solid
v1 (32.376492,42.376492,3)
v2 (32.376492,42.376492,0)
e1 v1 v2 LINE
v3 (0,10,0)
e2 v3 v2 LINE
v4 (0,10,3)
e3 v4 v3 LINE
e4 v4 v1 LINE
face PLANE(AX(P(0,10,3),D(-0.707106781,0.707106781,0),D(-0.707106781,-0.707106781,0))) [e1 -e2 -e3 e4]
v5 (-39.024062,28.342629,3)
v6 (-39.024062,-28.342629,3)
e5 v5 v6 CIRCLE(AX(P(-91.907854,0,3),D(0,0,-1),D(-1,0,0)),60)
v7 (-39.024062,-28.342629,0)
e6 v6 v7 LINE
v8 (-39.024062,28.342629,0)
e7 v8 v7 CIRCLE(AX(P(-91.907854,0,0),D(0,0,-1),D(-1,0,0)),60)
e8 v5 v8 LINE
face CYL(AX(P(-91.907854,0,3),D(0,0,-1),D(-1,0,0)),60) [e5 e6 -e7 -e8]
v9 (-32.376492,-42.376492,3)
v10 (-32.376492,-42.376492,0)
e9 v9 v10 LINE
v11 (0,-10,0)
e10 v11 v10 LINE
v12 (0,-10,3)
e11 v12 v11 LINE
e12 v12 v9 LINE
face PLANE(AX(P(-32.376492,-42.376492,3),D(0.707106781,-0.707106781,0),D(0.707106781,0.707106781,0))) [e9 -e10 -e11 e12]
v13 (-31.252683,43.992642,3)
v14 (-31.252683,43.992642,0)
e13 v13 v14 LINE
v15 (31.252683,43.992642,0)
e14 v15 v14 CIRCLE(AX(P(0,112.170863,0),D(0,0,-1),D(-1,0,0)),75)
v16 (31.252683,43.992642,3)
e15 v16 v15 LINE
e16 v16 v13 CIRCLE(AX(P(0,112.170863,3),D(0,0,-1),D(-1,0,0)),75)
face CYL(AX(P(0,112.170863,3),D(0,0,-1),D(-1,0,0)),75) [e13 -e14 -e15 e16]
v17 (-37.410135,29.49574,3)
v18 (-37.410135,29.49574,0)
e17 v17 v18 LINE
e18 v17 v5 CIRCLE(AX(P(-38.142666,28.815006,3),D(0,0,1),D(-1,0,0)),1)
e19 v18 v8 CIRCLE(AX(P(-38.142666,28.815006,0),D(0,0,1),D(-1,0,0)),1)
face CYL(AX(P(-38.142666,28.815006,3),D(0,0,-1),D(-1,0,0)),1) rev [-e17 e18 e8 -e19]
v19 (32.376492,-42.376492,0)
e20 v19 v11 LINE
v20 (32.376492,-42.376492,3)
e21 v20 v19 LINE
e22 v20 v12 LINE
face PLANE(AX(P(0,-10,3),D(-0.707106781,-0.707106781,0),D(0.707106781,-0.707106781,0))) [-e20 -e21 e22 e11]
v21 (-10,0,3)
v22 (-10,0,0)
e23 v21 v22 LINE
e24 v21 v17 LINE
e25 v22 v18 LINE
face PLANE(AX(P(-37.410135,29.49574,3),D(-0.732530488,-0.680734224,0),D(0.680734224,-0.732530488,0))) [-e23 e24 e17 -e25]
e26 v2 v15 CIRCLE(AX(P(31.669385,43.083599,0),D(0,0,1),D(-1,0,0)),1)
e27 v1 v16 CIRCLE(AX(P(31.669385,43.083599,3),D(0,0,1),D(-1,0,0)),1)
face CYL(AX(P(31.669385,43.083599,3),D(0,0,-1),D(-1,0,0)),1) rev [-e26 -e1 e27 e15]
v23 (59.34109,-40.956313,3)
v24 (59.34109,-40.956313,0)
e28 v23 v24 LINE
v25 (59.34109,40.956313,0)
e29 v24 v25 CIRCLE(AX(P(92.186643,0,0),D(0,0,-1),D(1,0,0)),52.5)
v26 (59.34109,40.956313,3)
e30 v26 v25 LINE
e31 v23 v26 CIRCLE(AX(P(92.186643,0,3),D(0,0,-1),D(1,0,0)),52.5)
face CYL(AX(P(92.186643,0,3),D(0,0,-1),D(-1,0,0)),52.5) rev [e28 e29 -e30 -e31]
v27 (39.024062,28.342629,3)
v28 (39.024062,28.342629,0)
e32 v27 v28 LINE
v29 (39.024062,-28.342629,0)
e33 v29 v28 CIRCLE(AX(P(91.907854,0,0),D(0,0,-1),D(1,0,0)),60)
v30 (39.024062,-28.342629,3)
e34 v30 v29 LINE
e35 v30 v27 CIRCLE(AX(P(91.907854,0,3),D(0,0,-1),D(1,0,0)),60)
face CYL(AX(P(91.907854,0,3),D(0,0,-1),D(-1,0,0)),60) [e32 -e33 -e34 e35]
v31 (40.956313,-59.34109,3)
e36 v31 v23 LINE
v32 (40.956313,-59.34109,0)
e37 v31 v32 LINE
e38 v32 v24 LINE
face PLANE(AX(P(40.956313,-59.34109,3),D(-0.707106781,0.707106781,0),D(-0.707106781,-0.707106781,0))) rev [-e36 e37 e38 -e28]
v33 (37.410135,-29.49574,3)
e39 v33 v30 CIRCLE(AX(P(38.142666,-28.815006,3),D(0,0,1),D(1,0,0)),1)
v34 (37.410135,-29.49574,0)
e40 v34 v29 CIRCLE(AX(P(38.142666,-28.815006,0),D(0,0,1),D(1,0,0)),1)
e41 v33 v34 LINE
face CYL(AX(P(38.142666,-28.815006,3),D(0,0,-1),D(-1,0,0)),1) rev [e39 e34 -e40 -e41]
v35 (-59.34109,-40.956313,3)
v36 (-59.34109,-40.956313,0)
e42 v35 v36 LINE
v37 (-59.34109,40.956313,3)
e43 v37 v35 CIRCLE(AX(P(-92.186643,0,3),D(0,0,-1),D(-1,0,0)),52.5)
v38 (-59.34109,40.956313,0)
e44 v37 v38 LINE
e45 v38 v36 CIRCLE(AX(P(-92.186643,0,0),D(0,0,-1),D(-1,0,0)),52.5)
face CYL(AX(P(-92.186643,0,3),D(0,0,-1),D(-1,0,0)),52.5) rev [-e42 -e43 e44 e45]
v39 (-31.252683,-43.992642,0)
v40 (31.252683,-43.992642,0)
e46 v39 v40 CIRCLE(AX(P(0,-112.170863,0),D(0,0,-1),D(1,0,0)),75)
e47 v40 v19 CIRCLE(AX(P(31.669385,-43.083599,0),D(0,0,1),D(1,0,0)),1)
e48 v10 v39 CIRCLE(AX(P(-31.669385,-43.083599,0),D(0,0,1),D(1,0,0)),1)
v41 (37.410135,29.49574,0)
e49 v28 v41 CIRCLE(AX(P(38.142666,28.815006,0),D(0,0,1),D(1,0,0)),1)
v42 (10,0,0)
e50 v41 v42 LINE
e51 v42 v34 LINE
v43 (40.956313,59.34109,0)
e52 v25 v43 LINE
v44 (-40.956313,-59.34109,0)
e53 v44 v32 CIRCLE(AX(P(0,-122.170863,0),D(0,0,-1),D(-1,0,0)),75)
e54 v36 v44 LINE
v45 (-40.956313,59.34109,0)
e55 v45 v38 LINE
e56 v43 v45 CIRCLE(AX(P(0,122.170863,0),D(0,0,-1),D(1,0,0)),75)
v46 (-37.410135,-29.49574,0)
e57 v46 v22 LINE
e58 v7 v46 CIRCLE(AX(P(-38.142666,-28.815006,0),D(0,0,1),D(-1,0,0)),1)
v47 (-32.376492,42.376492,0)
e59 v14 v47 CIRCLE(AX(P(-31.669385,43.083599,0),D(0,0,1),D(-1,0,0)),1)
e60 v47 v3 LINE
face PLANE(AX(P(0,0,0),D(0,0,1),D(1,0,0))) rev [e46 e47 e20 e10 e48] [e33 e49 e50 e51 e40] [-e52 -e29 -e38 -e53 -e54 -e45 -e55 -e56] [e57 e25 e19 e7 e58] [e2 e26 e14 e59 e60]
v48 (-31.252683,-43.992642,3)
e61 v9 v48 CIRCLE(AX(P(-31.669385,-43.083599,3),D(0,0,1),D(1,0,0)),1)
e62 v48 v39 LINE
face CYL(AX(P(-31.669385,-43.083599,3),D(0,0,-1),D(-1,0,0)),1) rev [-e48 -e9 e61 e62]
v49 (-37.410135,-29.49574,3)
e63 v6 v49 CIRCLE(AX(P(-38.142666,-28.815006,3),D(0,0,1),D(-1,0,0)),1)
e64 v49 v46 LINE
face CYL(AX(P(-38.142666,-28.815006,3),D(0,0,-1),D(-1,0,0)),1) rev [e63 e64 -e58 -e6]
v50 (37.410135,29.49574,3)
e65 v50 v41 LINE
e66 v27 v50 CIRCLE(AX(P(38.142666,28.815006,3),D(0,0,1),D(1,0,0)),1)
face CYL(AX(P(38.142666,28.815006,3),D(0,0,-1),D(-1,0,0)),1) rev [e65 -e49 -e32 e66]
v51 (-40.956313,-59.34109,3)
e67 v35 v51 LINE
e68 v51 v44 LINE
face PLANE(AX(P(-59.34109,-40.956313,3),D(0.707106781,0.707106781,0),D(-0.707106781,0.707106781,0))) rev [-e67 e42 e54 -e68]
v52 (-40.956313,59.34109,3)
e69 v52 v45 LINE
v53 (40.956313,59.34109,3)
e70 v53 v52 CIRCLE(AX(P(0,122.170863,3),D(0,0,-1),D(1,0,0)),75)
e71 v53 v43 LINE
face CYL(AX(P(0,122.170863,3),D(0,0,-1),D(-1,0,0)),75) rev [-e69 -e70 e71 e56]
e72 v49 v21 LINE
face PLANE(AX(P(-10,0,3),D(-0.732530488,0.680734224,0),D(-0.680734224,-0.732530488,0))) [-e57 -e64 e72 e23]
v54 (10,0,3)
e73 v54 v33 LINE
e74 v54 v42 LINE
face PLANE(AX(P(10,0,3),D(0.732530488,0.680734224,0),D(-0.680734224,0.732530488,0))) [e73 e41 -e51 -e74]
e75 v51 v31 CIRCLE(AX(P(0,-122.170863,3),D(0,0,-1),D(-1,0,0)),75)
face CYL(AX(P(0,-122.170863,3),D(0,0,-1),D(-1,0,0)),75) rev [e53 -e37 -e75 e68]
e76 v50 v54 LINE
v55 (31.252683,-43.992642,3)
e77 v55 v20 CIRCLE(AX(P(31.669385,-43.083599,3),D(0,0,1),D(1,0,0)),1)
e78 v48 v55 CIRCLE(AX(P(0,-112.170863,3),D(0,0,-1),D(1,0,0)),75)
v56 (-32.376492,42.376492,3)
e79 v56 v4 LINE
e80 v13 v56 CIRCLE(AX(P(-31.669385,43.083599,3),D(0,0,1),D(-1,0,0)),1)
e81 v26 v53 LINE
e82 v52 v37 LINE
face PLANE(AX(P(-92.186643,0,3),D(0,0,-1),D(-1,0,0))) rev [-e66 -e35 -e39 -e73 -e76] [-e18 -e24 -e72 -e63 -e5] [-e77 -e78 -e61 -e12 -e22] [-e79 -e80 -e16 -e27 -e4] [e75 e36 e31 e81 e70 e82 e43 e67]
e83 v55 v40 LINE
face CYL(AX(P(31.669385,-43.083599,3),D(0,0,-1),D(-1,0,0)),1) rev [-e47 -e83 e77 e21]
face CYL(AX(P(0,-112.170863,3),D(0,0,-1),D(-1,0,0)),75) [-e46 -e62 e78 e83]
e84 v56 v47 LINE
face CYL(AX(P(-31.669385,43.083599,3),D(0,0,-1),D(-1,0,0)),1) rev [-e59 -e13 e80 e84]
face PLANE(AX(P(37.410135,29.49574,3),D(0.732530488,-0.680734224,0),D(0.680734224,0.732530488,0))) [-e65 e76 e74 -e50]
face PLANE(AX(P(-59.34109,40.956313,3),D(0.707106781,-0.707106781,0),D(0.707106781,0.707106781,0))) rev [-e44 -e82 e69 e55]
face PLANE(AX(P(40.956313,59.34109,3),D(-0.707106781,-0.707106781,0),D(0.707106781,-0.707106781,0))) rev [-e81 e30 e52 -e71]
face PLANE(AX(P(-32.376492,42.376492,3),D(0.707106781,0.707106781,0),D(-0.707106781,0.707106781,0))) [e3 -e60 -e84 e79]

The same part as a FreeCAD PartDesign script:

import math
import FreeCAD as App
import Part
import Sketcher

doc = App.newDocument("Part")
body = doc.addObject("PartDesign::Body", "Body")

sketch1 = body.newObject("Sketcher::SketchObject", "Sketch")
sketch1.AttachmentSupport = (doc.getObject("XY_Plane"), [""])
sketch1.MapMode = "FlatFace"
sketch1.addGeometry(Part.Circle(App.Vector(-44, 44, 0), App.Vector(0, 0, 1), 5), False)
sketch1.addConstraint(Sketcher.Constraint("Diameter", 0, 10.0))
sketch1.addConstraint(Sketcher.Constraint("DistanceX", 0, 3, -1, 1, 44.491847))
sketch1.addConstraint(Sketcher.Constraint("DistanceY", -1, 1, 0, 3, 44.491847))
pad1 = body.newObject("PartDesign::Pad", "Pad")
pad1.Profile = sketch1
pad1.Length = 0.1
body2 = doc.addObject("PartDesign::Body", "Body001")

sketch2 = body2.newObject("Sketcher::SketchObject", "Sketch001")
sketch2.AttachmentSupport = (doc.getObject("XY_Plane001"), [""])
sketch2.MapMode = "FlatFace"
sketch2.addGeometry(Part.Circle(App.Vector(44, 44, 0), App.Vector(0, 0, 1), 5), False)
sketch2.addConstraint(Sketcher.Constraint("Diameter", 0, 10.0))
sketch2.addConstraint(Sketcher.Constraint("DistanceX", -1, 1, 0, 3, 44.491847))
sketch2.addConstraint(Sketcher.Constraint("DistanceY", -1, 1, 0, 3, 44.491847))
pad2 = body2.newObject("PartDesign::Pad", "Pad001")
pad2.Profile = sketch2
pad2.Length = 0.1
body3 = doc.addObject("PartDesign::Body", "Body002")

sketch3 = body3.newObject("Sketcher::SketchObject", "Sketch002")
sketch3.AttachmentSupport = (doc.getObject("XY_Plane002"), [""])
sketch3.MapMode = "FlatFace"
sketch3.addGeometry(Part.Circle(App.Vector(44, -44, 0), App.Vector(0, 0, 1), 5), False)
sketch3.addConstraint(Sketcher.Constraint("Diameter", 0, 10.0))
sketch3.addConstraint(Sketcher.Constraint("DistanceX", -1, 1, 0, 3, 44.491847))
sketch3.addConstraint(Sketcher.Constraint("DistanceY", 0, 3, -1, 1, 44.491847))
pad3 = body3.newObject("PartDesign::Pad", "Pad002")
pad3.Profile = sketch3
pad3.Length = 0.1
body4 = doc.addObject("PartDesign::Body", "Body003")

sketch4 = body4.newObject("Sketcher::SketchObject", "Sketch003")
sketch4.AttachmentSupport = (doc.getObject("XY_Plane003"), [""])
sketch4.MapMode = "FlatFace"
sketch4.addGeometry(Part.Circle(App.Vector(-44, -44, 0), App.Vector(0, 0, 1), 5), False)
sketch4.addConstraint(Sketcher.Constraint("Diameter", 0, 10.0))
sketch4.addConstraint(Sketcher.Constraint("DistanceX", 0, 3, -1, 1, 44.491847))
sketch4.addConstraint(Sketcher.Constraint("DistanceY", 0, 3, -1, 1, 44.491847))
pad4 = body4.newObject("PartDesign::Pad", "Pad003")
pad4.Profile = sketch4
pad4.Length = 0.1
body.AllowCompound = True
doc.recompute()

boolean = body.newObject("PartDesign::Boolean", "Boolean")
boolean.Type = "Fuse"
boolean.addObjects([body2])
doc.recompute()

boolean2 = body.newObject("PartDesign::Boolean", "Boolean001")
boolean2.Type = "Fuse"
boolean2.addObjects([body3])
doc.recompute()

boolean3 = body.newObject("PartDesign::Boolean", "Boolean002")
boolean3.Type = "Fuse"
boolean3.addObjects([body4])

sketch5 = body.newObject("Sketcher::SketchObject", "Sketch004")
sketch5.AttachmentSupport = (doc.getObject("XY_Plane"), [""])
sketch5.MapMode = "FlatFace"
sketch5.addGeometry(Part.LineSegment(App.Vector(-40.956313, 59.34109, 0), App.Vector(-59.34109, 40.956313, 0)), False)
sketch5.addGeometry(Part.ArcOfCircle(Part.Circle(App.Vector(-92.186643, 0, 0), App.Vector(0, 0, 1), 52.5), math.radians(-51.271587), math.radians(51.271587)), False)
sketch5.addGeometry(Part.LineSegment(App.Vector(-59.34109, -40.956313, 0), App.Vector(-40.956313, -59.34109, 0)), False)
sketch5.addGeometry(Part.ArcOfCircle(Part.Circle(App.Vector(0, -122.170863, 0), App.Vector(0, 0, 1), 75), math.radians(56.901216), math.radians(123.098784)), False)
sketch5.addGeometry(Part.LineSegment(App.Vector(40.956313, -59.34109, 0), App.Vector(59.34109, -40.956313, 0)), False)
sketch5.addGeometry(Part.ArcOfCircle(Part.Circle(App.Vector(92.186643, 0, 0), App.Vector(0, 0, 1), 52.5), math.radians(128.728413), math.radians(231.271587)), False)
sketch5.addGeometry(Part.LineSegment(App.Vector(59.34109, 40.956313, 0), App.Vector(40.956313, 59.34109, 0)), False)
sketch5.addGeometry(Part.ArcOfCircle(Part.Circle(App.Vector(0, 122.170863, 0), App.Vector(0, 0, 1), 75), math.radians(-123.098784), math.radians(-56.901216)), False)
sketch5.addGeometry(Part.LineSegment(App.Vector(0, -10, 0), App.Vector(32.376492, -42.376492, 0)), False)
sketch5.addGeometry(Part.ArcOfCircle(Part.Circle(App.Vector(31.669385, -43.083599, 0), App.Vector(0, 0, 1), 1), math.radians(-114.626573), math.radians(45)), False)
sketch5.addGeometry(Part.ArcOfCircle(Part.Circle(App.Vector(0, -112.170863, 0), App.Vector(0, 0, 1), 75), math.radians(65.373427), math.radians(114.626573)), False)
sketch5.addGeometry(Part.ArcOfCircle(Part.Circle(App.Vector(-31.669385, -43.083599, 0), App.Vector(0, 0, 1), 1), math.radians(135), math.radians(294.626573)), False)
sketch5.addGeometry(Part.LineSegment(App.Vector(-32.376492, -42.376492, 0), App.Vector(0, -10, 0)), False)
sketch5.addGeometry(Part.LineSegment(App.Vector(10, 0, 0), App.Vector(37.410135, 29.49574, 0)), False)
sketch5.addGeometry(Part.ArcOfCircle(Part.Circle(App.Vector(38.142666, 28.815006, 0), App.Vector(0, 0, 1), 1), math.radians(-28.188713), math.radians(137.098955)), False)
sketch5.addGeometry(Part.ArcOfCircle(Part.Circle(App.Vector(91.907854, 0, 0), App.Vector(0, 0, 1), 60), math.radians(151.811287), math.radians(208.188713)), False)
sketch5.addGeometry(Part.ArcOfCircle(Part.Circle(App.Vector(38.142666, -28.815006, 0), App.Vector(0, 0, 1), 1), math.radians(-137.098955), math.radians(28.188713)), False)
sketch5.addGeometry(Part.LineSegment(App.Vector(37.410135, -29.49574, 0), App.Vector(10, 0, 0)), False)
sketch5.addGeometry(Part.LineSegment(App.Vector(-37.410135, 29.49574, 0), App.Vector(-10, 0, 0)), False)
sketch5.addGeometry(Part.LineSegment(App.Vector(-10, 0, 0), App.Vector(-37.410135, -29.49574, 0)), False)
sketch5.addGeometry(Part.ArcOfCircle(Part.Circle(App.Vector(-38.142666, -28.815006, 0), App.Vector(0, 0, 1), 1), math.radians(151.811287), math.radians(317.098955)), False)
sketch5.addGeometry(Part.ArcOfCircle(Part.Circle(App.Vector(-91.907854, 0, 0), App.Vector(0, 0, 1), 60), math.radians(-28.188713), math.radians(28.188713)), False)
sketch5.addGeometry(Part.ArcOfCircle(Part.Circle(App.Vector(-38.142666, 28.815006, 0), App.Vector(0, 0, 1), 1), math.radians(42.901045), math.radians(208.188713)), False)
sketch5.addGeometry(Part.ArcOfCircle(Part.Circle(App.Vector(-31.669385, 43.083599, 0), App.Vector(0, 0, 1), 1), math.radians(65.373427), math.radians(225)), False)
sketch5.addGeometry(Part.ArcOfCircle(Part.Circle(App.Vector(0, 112.170863, 0), App.Vector(0, 0, 1), 75), math.radians(-114.626573), math.radians(-65.373427)), False)
sketch5.addGeometry(Part.ArcOfCircle(Part.Circle(App.Vector(31.669385, 43.083599, 0), App.Vector(0, 0, 1), 1), math.radians(-45), math.radians(114.626573)), False)
sketch5.addGeometry(Part.LineSegment(App.Vector(32.376492, 42.376492, 0), App.Vector(0, 10, 0)), False)
sketch5.addGeometry(Part.LineSegment(App.Vector(0, 10, 0), App.Vector(-32.376492, 42.376492, 0)), False)
sketch5.addConstraint(Sketcher.Constraint("Coincident", 0, 2, 1, 2))
sketch5.addConstraint(Sketcher.Constraint("Coincident", 1, 1, 2, 1))
sketch5.addConstraint(Sketcher.Constraint("Coincident", 2, 2, 3, 2))
sketch5.addConstraint(Sketcher.Constraint("Coincident", 3, 1, 4, 1))
sketch5.addConstraint(Sketcher.Constraint("Coincident", 4, 2, 5, 2))
sketch5.addConstraint(Sketcher.Constraint("Coincident", 5, 1, 6, 1))
sketch5.addConstraint(Sketcher.Constraint("Coincident", 6, 2, 7, 2))
sketch5.addConstraint(Sketcher.Constraint("Coincident", 7, 1, 0, 1))
sketch5.addConstraint(Sketcher.Constraint("Coincident", 8, 2, 9, 2))
sketch5.addConstraint(Sketcher.Constraint("Coincident", 9, 1, 10, 1))
sketch5.addConstraint(Sketcher.Constraint("Coincident", 10, 2, 11, 2))
sketch5.addConstraint(Sketcher.Constraint("Coincident", 11, 1, 12, 1))
sketch5.addConstraint(Sketcher.Constraint("Coincident", 12, 2, 8, 1))
sketch5.addConstraint(Sketcher.Constraint("Coincident", 13, 2, 14, 2))
sketch5.addConstraint(Sketcher.Constraint("Coincident", 14, 1, 15, 1))
sketch5.addConstraint(Sketcher.Constraint("Coincident", 15, 2, 16, 2))
sketch5.addConstraint(Sketcher.Constraint("Coincident", 16, 1, 17, 1))
sketch5.addConstraint(Sketcher.Constraint("Coincident", 17, 2, 13, 1))
sketch5.addConstraint(Sketcher.Constraint("Coincident", 18, 2, 19, 1))
sketch5.addConstraint(Sketcher.Constraint("Coincident", 19, 2, 20, 2))
sketch5.addConstraint(Sketcher.Constraint("Coincident", 20, 1, 21, 1))
sketch5.addConstraint(Sketcher.Constraint("Coincident", 21, 2, 22, 2))
sketch5.addConstraint(Sketcher.Constraint("Coincident", 22, 1, 18, 1))
sketch5.addConstraint(Sketcher.Constraint("Coincident", 23, 1, 24, 1))
sketch5.addConstraint(Sketcher.Constraint("Coincident", 24, 2, 25, 2))
sketch5.addConstraint(Sketcher.Constraint("Coincident", 25, 1, 26, 1))
sketch5.addConstraint(Sketcher.Constraint("Coincident", 26, 2, 27, 1))
sketch5.addConstraint(Sketcher.Constraint("Coincident", 27, 2, 23, 2))
sketch5.addConstraint(Sketcher.Constraint("PointOnObject", 1, 3, -1))
sketch5.addConstraint(Sketcher.Constraint("PointOnObject", 3, 3, -2))
sketch5.addConstraint(Sketcher.Constraint("PointOnObject", 5, 3, -1))
sketch5.addConstraint(Sketcher.Constraint("PointOnObject", 7, 3, -2))
sketch5.addConstraint(Sketcher.Constraint("PointOnObject", 10, 3, -2))
sketch5.addConstraint(Sketcher.Constraint("PointOnObject", 15, 3, -1))
sketch5.addConstraint(Sketcher.Constraint("PointOnObject", 21, 3, -1))
sketch5.addConstraint(Sketcher.Constraint("PointOnObject", 24, 3, -2))
sketch5.addConstraint(Sketcher.Constraint("PointOnObject", 12, 2, -2))
sketch5.addConstraint(Sketcher.Constraint("PointOnObject", 17, 2, -1))
sketch5.addConstraint(Sketcher.Constraint("PointOnObject", 18, 2, -1))
sketch5.addConstraint(Sketcher.Constraint("PointOnObject", 26, 2, -2))
sketch5.addConstraint(Sketcher.Constraint("Radius", 3, 75.0))
sketch5.addConstraint(Sketcher.Constraint("Radius", 7, 75.0))
sketch5.addConstraint(Sketcher.Constraint("Radius", 9, 1.0))
sketch5.addConstraint(Sketcher.Constraint("Radius", 10, 75.0))
sketch5.addConstraint(Sketcher.Constraint("Radius", 11, 1.0))
sketch5.addConstraint(Sketcher.Constraint("Radius", 14, 1.0))
sketch5.addConstraint(Sketcher.Constraint("Radius", 15, 60.0))
sketch5.addConstraint(Sketcher.Constraint("Radius", 16, 1.0))
sketch5.addConstraint(Sketcher.Constraint("Radius", 20, 1.0))
sketch5.addConstraint(Sketcher.Constraint("Radius", 21, 60.0))
sketch5.addConstraint(Sketcher.Constraint("Radius", 22, 1.0))
sketch5.addConstraint(Sketcher.Constraint("Radius", 23, 1.0))
sketch5.addConstraint(Sketcher.Constraint("Radius", 24, 75.0))
sketch5.addConstraint(Sketcher.Constraint("Radius", 25, 1.0))
sketch5.addConstraint(Sketcher.Constraint("Radius", 1, 52.5))
sketch5.addConstraint(Sketcher.Constraint("Radius", 5, 52.5))
sketch5.addConstraint(Sketcher.Constraint("Distance", 0, 26.0))
sketch5.addConstraint(Sketcher.Constraint("Distance", 2, 26.0))
sketch5.addConstraint(Sketcher.Constraint("Distance", 4, 26.0))
sketch5.addConstraint(Sketcher.Constraint("Distance", 6, 26.0))
sketch5.addConstraint(Sketcher.Constraint("DistanceY", 12, 2, -1, 1, 10.0))
sketch5.addConstraint(Sketcher.Constraint("DistanceX", -1, 1, 17, 2, 10.0))
sketch5.addConstraint(Sketcher.Constraint("DistanceX", 18, 2, -1, 1, 10.0))
sketch5.addConstraint(Sketcher.Constraint("DistanceY", -1, 1, 26, 2, 10.0))
sketch5.addConstraint(Sketcher.Constraint("DistanceY", 3, 3, 10, 3, 10.0))
sketch5.addConstraint(Sketcher.Constraint("DistanceY", 24, 3, 7, 3, 10.0))
sketch5.addConstraint(Sketcher.Constraint("DistanceY", 9, 3, -1, 1, 43.083599))
sketch5.addConstraint(Sketcher.Constraint("DistanceY", 11, 3, -1, 1, 43.083599))
sketch5.addConstraint(Sketcher.Constraint("DistanceY", -1, 1, 23, 3, 43.083599))
sketch5.addConstraint(Sketcher.Constraint("DistanceY", -1, 1, 25, 3, 43.083599))
sketch5.addConstraint(Sketcher.Constraint("DistanceX", 2, 2, 9, 3, 72.625699))
sketch5.addConstraint(Sketcher.Constraint("DistanceX", 11, 3, 3, 1, 72.625699))
sketch5.addConstraint(Sketcher.Constraint("DistanceX", 23, 3, 6, 2, 72.625699))
sketch5.addConstraint(Sketcher.Constraint("DistanceX", 7, 1, 25, 3, 72.625699))
sketch5.addConstraint(Sketcher.Constraint("DistanceY", 9, 1, 16, 1, 14.496902))
sketch5.addConstraint(Sketcher.Constraint("DistanceY", 10, 2, 19, 2, 14.496902))
sketch5.addConstraint(Sketcher.Constraint("DistanceY", 22, 1, 23, 1, 14.496902))
sketch5.addConstraint(Sketcher.Constraint("DistanceY", 13, 2, 24, 2, 14.496902))
sketch5.addConstraint(Sketcher.Constraint("DistanceX", 0, 2, -1, 1, 59.34109))
sketch5.addConstraint(Sketcher.Constraint("DistanceX", 1, 1, -1, 1, 59.34109))
sketch5.addConstraint(Sketcher.Constraint("DistanceY", 2, 2, -1, 1, 59.34109))
sketch5.addConstraint(Sketcher.Constraint("DistanceX", -1, 1, 4, 2, 59.34109))
sketch5.addConstraint(Sketcher.Constraint("DistanceY", 9, 1, -1, 1, 43.992642))
sketch5.addConstraint(Sketcher.Constraint("DistanceY", 10, 2, -1, 1, 43.992642))
sketch5.addConstraint(Sketcher.Constraint("DistanceY", -1, 1, 13, 2, 29.49574))
sketch5.addConstraint(Sketcher.Constraint("DistanceY", -1, 1, 14, 1, 28.342629))
sketch5.addConstraint(Sketcher.Constraint("DistanceY", 15, 2, -1, 1, 28.342629))
sketch5.addConstraint(Sketcher.Constraint("DistanceY", 20, 1, -1, 1, 28.342629))
sketch5.addConstraint(Sketcher.Constraint("DistanceY", -1, 1, 21, 2, 28.342629))
sketch5.addConstraint(Sketcher.Constraint("DistanceY", -1, 1, 22, 1, 29.49574))
sketch5.addConstraint(Sketcher.Constraint("DistanceX", 9, 3, 14, 3, 6.47328))
sketch5.addConstraint(Sketcher.Constraint("DistanceX", 15, 3, 5, 3, 0.27879))
sketch5.addConstraint(Sketcher.Constraint("DistanceX", 9, 3, 16, 3, 6.47328))
sketch5.addConstraint(Sketcher.Constraint("DistanceX", 20, 3, 11, 3, 6.47328))
sketch5.addConstraint(Sketcher.Constraint("DistanceX", 1, 3, 21, 3, 0.27879))
sketch5.addConstraint(Sketcher.Constraint("DistanceY", 20, 3, 22, 3, 57.630011))
sketch5.addConstraint(Sketcher.Constraint("DistanceX", 8, 2, 3, 1, 8.579821))
sketch5.addConstraint(Sketcher.Constraint("DistanceX", 11, 1, 10, 2, 1.123809))
sketch5.addConstraint(Sketcher.Constraint("DistanceX", 24, 2, 25, 1, 1.123809))
sketch5.addConstraint(Sketcher.Constraint("DistanceX", 27, 2, 23, 1, 1.123809))
pad5 = body.newObject("PartDesign::Pad", "Pad004")
pad5.Profile = sketch5
pad5.Length = 3

doc.recompute()
